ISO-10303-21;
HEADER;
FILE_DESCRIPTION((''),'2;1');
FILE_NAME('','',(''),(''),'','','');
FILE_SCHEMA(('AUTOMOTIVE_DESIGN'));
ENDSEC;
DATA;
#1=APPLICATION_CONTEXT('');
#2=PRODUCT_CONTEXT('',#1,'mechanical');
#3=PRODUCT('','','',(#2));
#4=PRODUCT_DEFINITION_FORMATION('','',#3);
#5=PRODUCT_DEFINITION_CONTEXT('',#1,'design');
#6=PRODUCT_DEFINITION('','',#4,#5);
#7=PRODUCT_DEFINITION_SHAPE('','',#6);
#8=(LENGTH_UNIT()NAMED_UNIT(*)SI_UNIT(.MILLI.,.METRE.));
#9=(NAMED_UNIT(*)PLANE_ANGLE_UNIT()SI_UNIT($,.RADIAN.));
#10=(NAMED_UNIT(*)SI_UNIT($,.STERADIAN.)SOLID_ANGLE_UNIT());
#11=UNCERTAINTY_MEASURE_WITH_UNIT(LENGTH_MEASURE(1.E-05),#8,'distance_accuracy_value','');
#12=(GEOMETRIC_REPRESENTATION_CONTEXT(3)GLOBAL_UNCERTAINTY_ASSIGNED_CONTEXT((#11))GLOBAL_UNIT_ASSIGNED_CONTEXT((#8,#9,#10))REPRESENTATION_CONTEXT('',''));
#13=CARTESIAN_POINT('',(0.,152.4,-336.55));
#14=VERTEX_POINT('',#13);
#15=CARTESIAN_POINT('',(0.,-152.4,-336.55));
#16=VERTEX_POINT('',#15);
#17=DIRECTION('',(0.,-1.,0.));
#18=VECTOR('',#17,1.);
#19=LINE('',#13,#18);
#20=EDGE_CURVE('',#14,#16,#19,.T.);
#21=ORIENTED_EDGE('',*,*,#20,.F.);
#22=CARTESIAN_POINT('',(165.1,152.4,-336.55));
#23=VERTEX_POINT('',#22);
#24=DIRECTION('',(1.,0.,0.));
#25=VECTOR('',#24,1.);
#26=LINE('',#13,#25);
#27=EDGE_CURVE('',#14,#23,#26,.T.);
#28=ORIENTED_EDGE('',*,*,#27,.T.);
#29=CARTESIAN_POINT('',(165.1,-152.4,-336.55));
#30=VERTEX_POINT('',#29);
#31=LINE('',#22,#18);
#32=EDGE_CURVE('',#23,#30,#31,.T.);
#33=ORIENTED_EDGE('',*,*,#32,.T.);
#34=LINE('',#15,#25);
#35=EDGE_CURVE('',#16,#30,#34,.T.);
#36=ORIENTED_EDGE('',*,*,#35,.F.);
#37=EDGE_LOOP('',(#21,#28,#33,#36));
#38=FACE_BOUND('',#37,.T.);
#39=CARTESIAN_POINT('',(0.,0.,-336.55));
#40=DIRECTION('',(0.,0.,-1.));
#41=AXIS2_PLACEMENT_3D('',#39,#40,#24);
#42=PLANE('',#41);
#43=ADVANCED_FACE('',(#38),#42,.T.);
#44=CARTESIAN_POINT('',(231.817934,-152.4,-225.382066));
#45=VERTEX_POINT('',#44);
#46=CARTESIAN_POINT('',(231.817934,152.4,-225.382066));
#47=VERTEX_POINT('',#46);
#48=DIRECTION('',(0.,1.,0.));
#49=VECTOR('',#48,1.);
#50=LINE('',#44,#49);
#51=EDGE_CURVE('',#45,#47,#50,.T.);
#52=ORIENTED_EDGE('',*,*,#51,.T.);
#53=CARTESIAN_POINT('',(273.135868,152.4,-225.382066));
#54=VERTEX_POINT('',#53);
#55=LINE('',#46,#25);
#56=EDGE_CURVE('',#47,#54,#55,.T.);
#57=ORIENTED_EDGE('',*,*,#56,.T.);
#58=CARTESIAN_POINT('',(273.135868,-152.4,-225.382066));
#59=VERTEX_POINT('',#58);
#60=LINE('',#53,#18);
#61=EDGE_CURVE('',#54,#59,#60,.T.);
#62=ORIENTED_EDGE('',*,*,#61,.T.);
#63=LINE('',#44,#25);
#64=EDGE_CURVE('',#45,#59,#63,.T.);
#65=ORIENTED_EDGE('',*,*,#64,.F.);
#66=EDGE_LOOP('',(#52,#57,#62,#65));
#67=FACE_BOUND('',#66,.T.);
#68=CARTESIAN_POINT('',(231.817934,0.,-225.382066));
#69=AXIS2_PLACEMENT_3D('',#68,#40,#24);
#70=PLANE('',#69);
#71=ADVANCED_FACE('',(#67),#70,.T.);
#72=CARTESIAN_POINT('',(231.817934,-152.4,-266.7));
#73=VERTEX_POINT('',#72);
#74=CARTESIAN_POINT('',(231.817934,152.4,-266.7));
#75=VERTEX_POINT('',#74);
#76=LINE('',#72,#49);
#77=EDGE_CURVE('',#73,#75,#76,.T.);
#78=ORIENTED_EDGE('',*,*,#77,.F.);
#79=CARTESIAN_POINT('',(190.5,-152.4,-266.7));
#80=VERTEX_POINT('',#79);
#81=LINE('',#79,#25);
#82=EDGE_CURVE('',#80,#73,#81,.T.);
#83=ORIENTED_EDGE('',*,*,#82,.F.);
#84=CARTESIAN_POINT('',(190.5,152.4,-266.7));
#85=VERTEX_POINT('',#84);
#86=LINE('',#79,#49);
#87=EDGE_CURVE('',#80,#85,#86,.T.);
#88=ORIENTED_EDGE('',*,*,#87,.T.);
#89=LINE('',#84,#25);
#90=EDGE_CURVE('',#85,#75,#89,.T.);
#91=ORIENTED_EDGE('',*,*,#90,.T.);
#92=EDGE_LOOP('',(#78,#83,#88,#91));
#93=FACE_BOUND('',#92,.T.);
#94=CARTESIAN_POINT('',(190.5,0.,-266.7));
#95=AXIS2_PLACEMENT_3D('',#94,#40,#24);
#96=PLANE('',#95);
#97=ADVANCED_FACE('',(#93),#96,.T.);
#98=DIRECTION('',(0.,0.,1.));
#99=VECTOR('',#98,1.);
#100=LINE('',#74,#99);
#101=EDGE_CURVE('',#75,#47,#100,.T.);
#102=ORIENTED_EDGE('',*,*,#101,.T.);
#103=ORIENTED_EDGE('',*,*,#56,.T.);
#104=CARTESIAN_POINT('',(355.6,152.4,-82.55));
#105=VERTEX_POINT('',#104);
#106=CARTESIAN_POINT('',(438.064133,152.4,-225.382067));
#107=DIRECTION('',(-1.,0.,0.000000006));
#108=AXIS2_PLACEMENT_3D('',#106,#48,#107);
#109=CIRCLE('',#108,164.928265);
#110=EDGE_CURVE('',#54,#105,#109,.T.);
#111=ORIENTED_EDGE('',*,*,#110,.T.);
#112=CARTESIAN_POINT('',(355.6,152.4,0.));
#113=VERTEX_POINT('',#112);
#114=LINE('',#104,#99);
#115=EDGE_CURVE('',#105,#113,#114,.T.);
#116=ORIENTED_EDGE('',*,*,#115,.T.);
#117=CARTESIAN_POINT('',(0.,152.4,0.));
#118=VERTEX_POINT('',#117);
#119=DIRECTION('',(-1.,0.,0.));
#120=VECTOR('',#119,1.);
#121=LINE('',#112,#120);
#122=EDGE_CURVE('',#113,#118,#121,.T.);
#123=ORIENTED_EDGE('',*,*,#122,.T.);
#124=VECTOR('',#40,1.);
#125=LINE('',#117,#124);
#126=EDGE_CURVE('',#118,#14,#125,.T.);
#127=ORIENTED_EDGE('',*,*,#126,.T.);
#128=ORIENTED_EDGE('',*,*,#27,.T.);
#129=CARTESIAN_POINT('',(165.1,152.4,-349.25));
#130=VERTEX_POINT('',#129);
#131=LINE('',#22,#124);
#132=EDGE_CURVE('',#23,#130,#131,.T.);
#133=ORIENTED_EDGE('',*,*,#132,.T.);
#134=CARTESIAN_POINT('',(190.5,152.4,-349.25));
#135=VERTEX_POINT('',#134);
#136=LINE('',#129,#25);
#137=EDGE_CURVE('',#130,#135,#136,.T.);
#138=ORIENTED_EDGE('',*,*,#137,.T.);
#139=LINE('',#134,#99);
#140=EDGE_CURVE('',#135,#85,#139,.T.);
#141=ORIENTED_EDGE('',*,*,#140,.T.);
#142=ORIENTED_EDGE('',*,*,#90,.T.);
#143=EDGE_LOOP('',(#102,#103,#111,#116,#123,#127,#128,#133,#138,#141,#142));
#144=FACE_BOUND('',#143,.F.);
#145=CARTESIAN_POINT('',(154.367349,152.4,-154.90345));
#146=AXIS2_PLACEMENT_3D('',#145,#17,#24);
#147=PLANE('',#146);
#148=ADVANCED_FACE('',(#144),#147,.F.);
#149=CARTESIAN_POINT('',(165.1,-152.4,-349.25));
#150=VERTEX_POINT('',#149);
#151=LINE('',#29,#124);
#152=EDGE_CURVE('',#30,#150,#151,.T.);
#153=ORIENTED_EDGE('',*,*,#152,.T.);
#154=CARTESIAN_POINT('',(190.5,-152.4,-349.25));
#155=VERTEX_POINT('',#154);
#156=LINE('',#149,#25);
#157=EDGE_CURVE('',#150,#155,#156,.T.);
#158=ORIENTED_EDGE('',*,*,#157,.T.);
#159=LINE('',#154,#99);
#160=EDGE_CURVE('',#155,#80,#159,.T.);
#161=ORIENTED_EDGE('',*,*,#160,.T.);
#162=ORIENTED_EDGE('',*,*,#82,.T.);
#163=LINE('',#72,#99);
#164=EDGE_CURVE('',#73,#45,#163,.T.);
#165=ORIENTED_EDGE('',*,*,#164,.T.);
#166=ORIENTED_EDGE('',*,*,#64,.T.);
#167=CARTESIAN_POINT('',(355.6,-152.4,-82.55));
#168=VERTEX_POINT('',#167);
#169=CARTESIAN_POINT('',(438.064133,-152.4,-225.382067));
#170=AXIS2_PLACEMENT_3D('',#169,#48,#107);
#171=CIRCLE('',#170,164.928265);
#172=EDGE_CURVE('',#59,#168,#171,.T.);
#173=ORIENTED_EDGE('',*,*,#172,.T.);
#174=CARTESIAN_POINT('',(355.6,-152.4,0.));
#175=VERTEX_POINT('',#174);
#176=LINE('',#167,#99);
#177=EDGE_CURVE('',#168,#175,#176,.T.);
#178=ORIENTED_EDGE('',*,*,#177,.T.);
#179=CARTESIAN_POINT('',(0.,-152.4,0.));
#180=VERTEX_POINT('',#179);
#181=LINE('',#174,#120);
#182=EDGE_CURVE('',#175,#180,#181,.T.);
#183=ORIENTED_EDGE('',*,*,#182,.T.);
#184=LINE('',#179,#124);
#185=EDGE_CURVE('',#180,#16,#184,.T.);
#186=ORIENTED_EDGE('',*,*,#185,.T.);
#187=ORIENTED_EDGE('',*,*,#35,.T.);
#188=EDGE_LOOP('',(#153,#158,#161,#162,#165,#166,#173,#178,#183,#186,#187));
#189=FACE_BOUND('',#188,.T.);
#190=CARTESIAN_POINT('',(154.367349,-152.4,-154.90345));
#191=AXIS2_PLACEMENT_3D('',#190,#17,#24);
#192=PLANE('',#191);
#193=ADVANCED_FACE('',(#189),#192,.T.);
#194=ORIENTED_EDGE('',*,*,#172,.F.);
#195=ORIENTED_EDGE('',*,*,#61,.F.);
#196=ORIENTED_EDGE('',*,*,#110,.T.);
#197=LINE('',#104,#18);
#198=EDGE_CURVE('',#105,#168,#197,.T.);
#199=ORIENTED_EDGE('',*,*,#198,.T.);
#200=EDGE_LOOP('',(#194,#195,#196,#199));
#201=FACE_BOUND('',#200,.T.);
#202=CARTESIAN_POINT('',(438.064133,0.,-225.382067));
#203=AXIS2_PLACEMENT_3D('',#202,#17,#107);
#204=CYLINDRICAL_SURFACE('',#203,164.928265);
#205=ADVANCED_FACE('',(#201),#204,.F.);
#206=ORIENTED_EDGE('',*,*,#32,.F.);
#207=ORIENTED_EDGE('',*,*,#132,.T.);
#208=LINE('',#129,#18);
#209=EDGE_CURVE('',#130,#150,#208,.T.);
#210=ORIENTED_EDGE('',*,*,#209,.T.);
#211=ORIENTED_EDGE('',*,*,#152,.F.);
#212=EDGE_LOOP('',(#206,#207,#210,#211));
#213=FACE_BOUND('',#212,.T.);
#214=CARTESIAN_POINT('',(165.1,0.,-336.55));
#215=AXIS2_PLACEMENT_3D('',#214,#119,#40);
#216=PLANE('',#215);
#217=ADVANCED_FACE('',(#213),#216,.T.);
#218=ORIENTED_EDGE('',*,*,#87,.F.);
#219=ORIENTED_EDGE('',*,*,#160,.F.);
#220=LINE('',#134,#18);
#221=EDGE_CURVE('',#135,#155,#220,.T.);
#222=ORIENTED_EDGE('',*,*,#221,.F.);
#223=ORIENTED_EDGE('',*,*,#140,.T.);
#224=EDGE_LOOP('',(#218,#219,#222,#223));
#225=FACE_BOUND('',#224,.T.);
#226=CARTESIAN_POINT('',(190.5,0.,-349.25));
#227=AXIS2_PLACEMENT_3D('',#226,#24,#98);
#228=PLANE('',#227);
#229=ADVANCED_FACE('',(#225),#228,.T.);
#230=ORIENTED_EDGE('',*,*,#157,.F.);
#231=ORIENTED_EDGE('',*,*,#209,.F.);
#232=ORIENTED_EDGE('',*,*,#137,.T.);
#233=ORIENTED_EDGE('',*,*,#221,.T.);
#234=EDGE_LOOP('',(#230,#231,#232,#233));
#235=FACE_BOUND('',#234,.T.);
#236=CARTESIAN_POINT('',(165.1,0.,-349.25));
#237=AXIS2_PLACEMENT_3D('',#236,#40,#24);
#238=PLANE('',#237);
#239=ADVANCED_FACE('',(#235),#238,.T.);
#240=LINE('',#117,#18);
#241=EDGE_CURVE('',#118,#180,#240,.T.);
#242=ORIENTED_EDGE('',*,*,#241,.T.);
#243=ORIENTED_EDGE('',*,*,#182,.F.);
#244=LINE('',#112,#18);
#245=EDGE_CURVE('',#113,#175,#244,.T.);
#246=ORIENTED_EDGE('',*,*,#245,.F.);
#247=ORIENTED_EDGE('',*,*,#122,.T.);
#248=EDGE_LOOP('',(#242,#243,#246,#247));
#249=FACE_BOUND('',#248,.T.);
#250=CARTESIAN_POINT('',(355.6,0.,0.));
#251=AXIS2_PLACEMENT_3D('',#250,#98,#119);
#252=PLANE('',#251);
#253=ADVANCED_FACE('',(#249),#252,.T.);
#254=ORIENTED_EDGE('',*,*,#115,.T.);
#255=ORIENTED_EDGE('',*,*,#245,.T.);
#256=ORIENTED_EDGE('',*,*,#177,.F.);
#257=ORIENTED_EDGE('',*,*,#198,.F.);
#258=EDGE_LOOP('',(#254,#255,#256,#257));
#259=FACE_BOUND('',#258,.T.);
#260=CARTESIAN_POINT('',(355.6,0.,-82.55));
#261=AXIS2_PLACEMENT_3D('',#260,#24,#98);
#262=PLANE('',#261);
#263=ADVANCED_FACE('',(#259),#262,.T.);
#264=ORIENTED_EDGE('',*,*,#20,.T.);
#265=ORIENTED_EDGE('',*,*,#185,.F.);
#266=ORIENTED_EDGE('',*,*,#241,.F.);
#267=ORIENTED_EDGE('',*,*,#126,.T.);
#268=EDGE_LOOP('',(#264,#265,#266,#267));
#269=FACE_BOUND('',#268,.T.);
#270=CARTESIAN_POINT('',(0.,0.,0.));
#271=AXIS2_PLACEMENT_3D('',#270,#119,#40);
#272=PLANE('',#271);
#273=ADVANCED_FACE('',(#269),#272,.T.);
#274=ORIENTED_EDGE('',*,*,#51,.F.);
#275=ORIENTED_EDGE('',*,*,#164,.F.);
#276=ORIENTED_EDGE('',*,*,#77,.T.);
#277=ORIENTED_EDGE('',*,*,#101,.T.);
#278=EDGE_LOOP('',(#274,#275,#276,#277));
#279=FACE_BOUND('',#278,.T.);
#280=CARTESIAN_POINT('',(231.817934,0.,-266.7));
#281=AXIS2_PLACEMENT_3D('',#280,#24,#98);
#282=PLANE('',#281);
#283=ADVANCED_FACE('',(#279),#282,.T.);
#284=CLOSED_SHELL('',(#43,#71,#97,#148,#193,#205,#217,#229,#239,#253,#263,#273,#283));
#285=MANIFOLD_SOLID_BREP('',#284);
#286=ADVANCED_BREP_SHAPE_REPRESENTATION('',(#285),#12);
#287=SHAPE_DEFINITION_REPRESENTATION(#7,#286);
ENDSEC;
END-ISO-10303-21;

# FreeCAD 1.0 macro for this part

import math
import FreeCAD as App
import Part
import Sketcher
from FreeCAD import Vector
Q = App.Units.Quantity

doc = App.newDocument("Part")
params = doc.addObject("Spreadsheet::Sheet", "Params")
for row, (alias, value) in enumerate([
    ("sketch1_width", "14 in"),
    ("sketch1_width2", "1 in"),
    ("sketch1_width3", "6.5 in"),
    ("sketch1_height", "0.5 in"),
    ("sketch1_height2", "3.25 in"),
    ("pad1_length", "12 in"),
], start=1):
    params.set(f"A{row}", alias)
    params.set(f"B{row}", "=" + value)
    params.setAlias(f"B{row}", alias)

body = doc.addObject("PartDesign::Body", "Body")

sketch1 = body.newObject("Sketcher::SketchObject", "Sketch")
sketch1.AttachmentSupport = (doc.getObject("XZ_Plane"), [""])
sketch1.MapMode = "FlatFace"
sketch1.addGeometry(Part.LineSegment(Vector(232, -225, 0), Vector(273, -225, 0)), False)
sketch1.addGeometry(Part.ArcOfCircle(Part.Circle(Vector(438, -225, 0), Vector(0, 0, 1), 165), math.radians(120), math.radians(180)), False)
sketch1.addGeometry(Part.LineSegment(Vector(356, -83, 0), Vector(356, 0, 0)), False)
sketch1.addGeometry(Part.LineSegment(Vector(356, 0, 0), Vector(0, 0, 0)), False)
sketch1.addGeometry(Part.LineSegment(Vector(0, 0, 0), Vector(0, -337, 0)), False)
sketch1.addGeometry(Part.LineSegment(Vector(0, -337, 0), Vector(165, -337, 0)), False)
sketch1.addGeometry(Part.LineSegment(Vector(165, -337, 0), Vector(165, -349, 0)), False)
sketch1.addGeometry(Part.LineSegment(Vector(165, -349, 0), Vector(190, -349, 0)), False)
sketch1.addGeometry(Part.LineSegment(Vector(190, -349, 0), Vector(190, -267, 0)), False)
sketch1.addGeometry(Part.LineSegment(Vector(190, -267, 0), Vector(232, -267, 0)), False)
sketch1.addGeometry(Part.LineSegment(Vector(232, -267, 0), Vector(232, -225, 0)), False)
sketch1.addConstraint(Sketcher.Constraint("Coincident", 0, 2, 1, 2))
sketch1.addConstraint(Sketcher.Constraint("Coincident", 1, 1, 2, 1))
sketch1.addConstraint(Sketcher.Constraint("Coincident", 2, 2, 3, 1))
sketch1.addConstraint(Sketcher.Constraint("Coincident", 3, 2, 4, 1))
sketch1.addConstraint(Sketcher.Constraint("Coincident", 4, 2, 5, 1))
sketch1.addConstraint(Sketcher.Constraint("Coincident", 5, 2, 6, 1))
sketch1.addConstraint(Sketcher.Constraint("Coincident", 6, 2, 7, 1))
sketch1.addConstraint(Sketcher.Constraint("Coincident", 7, 2, 8, 1))
sketch1.addConstraint(Sketcher.Constraint("Coincident", 8, 2, 9, 1))
sketch1.addConstraint(Sketcher.Constraint("Coincident", 9, 2, 10, 1))
sketch1.addConstraint(Sketcher.Constraint("Coincident", 10, 2, 0, 1))
sketch1.addConstraint(Sketcher.Constraint("Horizontal", 0))
sketch1.addConstraint(Sketcher.Constraint("Vertical", 2))
sketch1.addConstraint(Sketcher.Constraint("Horizontal", 3))
sketch1.addConstraint(Sketcher.Constraint("Vertical", 4))
sketch1.addConstraint(Sketcher.Constraint("Horizontal", 5))
sketch1.addConstraint(Sketcher.Constraint("Vertical", 6))
sketch1.addConstraint(Sketcher.Constraint("Horizontal", 7))
sketch1.addConstraint(Sketcher.Constraint("Vertical", 8))
sketch1.addConstraint(Sketcher.Constraint("Horizontal", 9))
sketch1.addConstraint(Sketcher.Constraint("Vertical", 10))
sketch1.addConstraint(Sketcher.Constraint("Coincident", 3, 2, -1, 1))
sketch1.addConstraint(Sketcher.Constraint("Horizontal", 1, 3, 0, 2))
sketch1.addConstraint(Sketcher.Constraint("Equal", 0, 9))
sketch1.addConstraint(Sketcher.Constraint("Equal", 2, 8))
sketch1.addConstraint(Sketcher.Constraint("Equal", 9, 10))
sketch1.addConstraint(Sketcher.Constraint("DistanceX", 3, 2, 3, 1, Q("14 in")))
sketch1.addConstraint(Sketcher.Constraint("DistanceX", 7, 1, 7, 2, Q("1 in")))
sketch1.addConstraint(Sketcher.Constraint("DistanceX", 5, 1, 5, 2, Q("6.5 in")))
sketch1.addConstraint(Sketcher.Constraint("DistanceY", 6, 2, 6, 1, Q("0.5 in")))
sketch1.addConstraint(Sketcher.Constraint("DistanceY", 4, 2, 1, 1, Q("10 in")))
sketch1.addConstraint(Sketcher.Constraint("DistanceY", 2, 1, 2, 2, Q("3.25 in")))
sketch1.addConstraint(Sketcher.Constraint("Radius", 1, 164.928265))
sketch1.setExpression("Constraints[26]", "Params.sketch1_width")
sketch1.setExpression("Constraints[27]", "Params.sketch1_width2")
sketch1.setExpression("Constraints[28]", "Params.sketch1_width3")
sketch1.setExpression("Constraints[29]", "Params.sketch1_height")
sketch1.setExpression("Constraints[31]", "Params.sketch1_height2")
pad1 = body.newObject("PartDesign::Pad", "Pad")
pad1.Profile = sketch1
pad1.setExpression("Length", "Params.pad1_length")
pad1.Midplane = True

doc.recompute()
